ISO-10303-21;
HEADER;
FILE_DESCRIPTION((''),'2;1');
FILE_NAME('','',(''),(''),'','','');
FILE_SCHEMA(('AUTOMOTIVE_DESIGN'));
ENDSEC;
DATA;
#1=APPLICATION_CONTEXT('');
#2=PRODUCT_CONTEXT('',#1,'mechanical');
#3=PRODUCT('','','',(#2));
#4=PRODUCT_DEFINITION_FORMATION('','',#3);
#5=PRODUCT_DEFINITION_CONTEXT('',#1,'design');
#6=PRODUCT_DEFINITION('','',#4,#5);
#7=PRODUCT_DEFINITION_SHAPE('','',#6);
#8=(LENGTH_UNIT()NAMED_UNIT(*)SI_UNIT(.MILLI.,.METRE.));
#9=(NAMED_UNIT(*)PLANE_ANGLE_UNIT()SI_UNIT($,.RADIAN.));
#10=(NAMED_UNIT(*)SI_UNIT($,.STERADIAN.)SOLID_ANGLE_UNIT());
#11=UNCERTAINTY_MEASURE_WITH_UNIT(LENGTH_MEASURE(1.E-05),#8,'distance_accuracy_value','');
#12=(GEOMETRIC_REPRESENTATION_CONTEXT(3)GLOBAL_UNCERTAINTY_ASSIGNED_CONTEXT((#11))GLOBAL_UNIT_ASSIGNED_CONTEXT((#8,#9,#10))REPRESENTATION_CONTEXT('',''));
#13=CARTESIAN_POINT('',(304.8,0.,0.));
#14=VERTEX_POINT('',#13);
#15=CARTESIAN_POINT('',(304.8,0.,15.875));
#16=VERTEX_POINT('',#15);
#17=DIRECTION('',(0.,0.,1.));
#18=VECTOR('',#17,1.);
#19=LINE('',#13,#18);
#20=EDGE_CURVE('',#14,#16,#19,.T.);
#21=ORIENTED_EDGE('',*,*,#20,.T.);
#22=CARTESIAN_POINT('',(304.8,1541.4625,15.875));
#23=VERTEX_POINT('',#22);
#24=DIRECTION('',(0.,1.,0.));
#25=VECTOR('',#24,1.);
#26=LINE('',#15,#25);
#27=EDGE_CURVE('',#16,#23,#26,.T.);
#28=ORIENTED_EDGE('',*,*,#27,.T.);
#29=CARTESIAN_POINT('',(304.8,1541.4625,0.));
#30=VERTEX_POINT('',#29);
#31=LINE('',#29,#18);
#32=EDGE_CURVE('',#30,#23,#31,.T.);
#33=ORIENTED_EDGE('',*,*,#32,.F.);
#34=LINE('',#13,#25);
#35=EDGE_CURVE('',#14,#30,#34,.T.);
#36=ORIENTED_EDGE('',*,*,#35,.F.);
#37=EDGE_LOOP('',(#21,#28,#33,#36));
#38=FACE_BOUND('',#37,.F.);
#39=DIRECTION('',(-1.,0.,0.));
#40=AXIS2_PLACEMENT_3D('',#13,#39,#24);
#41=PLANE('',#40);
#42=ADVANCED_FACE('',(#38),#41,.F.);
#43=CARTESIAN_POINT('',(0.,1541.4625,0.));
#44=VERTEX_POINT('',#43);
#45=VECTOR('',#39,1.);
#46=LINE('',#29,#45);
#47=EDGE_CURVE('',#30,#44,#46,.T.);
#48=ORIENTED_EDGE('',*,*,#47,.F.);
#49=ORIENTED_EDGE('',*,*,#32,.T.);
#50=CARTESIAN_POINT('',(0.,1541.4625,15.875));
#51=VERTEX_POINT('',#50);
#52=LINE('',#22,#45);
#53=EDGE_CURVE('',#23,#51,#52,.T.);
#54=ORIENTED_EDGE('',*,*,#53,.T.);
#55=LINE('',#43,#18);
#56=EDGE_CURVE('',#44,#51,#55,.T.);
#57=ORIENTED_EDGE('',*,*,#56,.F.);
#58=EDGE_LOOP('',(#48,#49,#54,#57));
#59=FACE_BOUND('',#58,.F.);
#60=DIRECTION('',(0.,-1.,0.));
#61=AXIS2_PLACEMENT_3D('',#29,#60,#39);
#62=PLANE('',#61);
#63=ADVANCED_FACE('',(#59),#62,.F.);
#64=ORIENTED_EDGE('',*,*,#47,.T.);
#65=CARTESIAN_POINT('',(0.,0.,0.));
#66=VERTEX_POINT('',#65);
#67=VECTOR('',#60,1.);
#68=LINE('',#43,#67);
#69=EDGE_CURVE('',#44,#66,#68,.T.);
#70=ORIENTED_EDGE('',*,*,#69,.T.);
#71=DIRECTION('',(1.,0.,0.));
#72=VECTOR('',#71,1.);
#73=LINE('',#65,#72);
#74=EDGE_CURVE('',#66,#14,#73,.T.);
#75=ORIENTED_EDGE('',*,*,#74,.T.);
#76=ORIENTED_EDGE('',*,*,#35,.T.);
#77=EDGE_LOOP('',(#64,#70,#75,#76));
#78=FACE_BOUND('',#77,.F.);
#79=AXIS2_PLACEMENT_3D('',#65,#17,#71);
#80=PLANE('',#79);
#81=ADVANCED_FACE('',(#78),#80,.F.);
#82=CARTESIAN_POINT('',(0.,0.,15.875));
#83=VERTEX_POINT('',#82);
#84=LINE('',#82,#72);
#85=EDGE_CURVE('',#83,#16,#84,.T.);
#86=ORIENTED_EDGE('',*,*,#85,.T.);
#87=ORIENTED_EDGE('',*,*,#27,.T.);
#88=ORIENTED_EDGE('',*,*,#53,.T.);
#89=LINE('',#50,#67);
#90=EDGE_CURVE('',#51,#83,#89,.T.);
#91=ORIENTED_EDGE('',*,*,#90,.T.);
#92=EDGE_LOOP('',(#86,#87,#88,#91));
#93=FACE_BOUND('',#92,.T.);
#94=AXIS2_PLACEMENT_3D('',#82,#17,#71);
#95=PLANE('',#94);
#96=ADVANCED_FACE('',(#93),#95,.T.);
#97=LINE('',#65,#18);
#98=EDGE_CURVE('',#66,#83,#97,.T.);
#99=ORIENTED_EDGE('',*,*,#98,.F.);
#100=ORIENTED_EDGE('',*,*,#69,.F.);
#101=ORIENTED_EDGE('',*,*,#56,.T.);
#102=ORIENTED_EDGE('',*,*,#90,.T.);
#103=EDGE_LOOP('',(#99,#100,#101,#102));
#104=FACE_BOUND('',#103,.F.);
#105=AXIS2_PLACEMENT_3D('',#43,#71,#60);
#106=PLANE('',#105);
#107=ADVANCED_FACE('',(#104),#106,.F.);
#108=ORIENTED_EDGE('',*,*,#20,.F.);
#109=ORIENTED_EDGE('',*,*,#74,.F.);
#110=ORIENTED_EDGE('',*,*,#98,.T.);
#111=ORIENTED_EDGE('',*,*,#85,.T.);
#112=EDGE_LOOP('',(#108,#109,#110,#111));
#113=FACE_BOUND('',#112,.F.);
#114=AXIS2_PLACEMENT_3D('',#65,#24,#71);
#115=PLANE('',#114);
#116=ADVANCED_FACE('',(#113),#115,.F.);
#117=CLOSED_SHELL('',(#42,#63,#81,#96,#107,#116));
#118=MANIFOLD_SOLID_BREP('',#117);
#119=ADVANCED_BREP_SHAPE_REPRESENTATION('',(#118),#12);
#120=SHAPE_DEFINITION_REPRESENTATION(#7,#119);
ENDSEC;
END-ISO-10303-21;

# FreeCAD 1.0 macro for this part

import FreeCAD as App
import Part
import Sketcher
from FreeCAD import Vector
Q = App.Units.Quantity


def add_polygon(sketch, points):
    """Adds a closed chain of lines whose ends are joined by coincident constraints."""
    first, n = sketch.GeometryCount, len(points)
    for a, b in zip(points, points[1:] + points[:1]):
        sketch.addGeometry(Part.LineSegment(App.Vector(*a, 0), App.Vector(*b, 0)), False)
    for i in range(n):
        sketch.addConstraint(Sketcher.Constraint("Coincident", first + i, 2, first + (i + 1) % n, 1))

doc = App.newDocument("Part")
body = doc.addObject("PartDesign::Body", "Body")

sketch1 = doc.addObject("Sketcher::SketchObject", "Sketch")
body.addObject(sketch1)
sketch1.AttachmentSupport = (doc.XY_Plane, [""])
sketch1.MapMode = "FlatFace"
add_polygon(sketch1, [(0, 1541), (0, 0), (305, 0), (305, 1541)])
sketch1.addConstraint([
    Sketcher.Constraint("Vertical", 0),
    Sketcher.Constraint("Horizontal", 1),
    Sketcher.Constraint("Vertical", 2),
    Sketcher.Constraint("Horizontal", 3),
    Sketcher.Constraint("Coincident", 0, 2, -1, 1),
    Sketcher.Constraint("DistanceX", 1, 1, 1, 2, Q("12 in")),
    Sketcher.Constraint("DistanceY", 0, 2, 0, 1, Q("60.6875 in")),
])
pad1 = doc.addObject("PartDesign::Pad", "Pad")
body.addObject(pad1)
pad1.Profile = sketch1
pad1.Length = Q("0.625 in")

doc.recompute()
